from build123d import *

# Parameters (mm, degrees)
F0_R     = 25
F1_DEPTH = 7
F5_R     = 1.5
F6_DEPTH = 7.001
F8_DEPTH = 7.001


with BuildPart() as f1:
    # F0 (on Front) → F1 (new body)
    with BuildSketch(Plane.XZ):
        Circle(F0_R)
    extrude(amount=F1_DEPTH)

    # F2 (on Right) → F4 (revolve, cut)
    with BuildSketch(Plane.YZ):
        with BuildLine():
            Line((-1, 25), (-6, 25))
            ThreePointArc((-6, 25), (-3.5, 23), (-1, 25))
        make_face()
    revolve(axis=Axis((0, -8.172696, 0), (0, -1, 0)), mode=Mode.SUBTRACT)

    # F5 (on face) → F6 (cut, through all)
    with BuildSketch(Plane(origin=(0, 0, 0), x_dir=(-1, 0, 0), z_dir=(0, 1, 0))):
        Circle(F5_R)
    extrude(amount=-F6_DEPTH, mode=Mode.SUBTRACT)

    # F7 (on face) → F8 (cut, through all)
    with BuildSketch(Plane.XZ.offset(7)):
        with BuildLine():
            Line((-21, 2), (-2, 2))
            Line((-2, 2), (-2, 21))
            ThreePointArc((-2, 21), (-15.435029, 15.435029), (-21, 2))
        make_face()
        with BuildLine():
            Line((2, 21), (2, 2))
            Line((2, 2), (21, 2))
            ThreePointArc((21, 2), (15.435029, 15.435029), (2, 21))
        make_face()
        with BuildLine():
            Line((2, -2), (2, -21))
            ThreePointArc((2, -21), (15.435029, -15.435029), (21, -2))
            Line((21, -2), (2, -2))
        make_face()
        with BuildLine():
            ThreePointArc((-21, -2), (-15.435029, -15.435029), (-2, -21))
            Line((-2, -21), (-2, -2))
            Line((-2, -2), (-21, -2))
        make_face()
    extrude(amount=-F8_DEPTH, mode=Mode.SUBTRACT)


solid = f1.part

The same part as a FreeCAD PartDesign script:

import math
import FreeCAD as App
import Part
import Sketcher

doc = App.newDocument("Part")
body = doc.addObject("PartDesign::Body", "Body")

# Sketch on XZ plane
sketch1 = doc.addObject("Sketcher::SketchObject", "Sketch")
body.addObject(sketch1)
sketch1.AttachmentSupport = (doc.XZ_Plane, [""])
sketch1.MapMode = "FlatFace"
sketch1.addGeometry(Part.Circle(App.Vector(0, 0, 0), App.Vector(0, 0, 1), 25), False)
sketch1.addConstraint([
    Sketcher.Constraint("Coincident", 0, 3, -1, 1),
    Sketcher.Constraint("Diameter", 0, 50.0),
])
pad1 = doc.addObject("PartDesign::Pad", "Pad")
body.addObject(pad1)
pad1.Profile = sketch1
pad1.Length = 7

# Sketch on YZ plane
sketch2 = doc.addObject("Sketcher::SketchObject", "Sketch001")
body.addObject(sketch2)
sketch2.AttachmentSupport = (doc.YZ_Plane, [""])
sketch2.MapMode = "FlatFace"
sketch2.addGeometry([
    Part.LineSegment(App.Vector(-1, 25, 0), App.Vector(-6, 25, 0)),
    Part.ArcOfCircle(Part.Circle(App.Vector(-3.5, 25.5625, 0), App.Vector(0, 0, 1), 2.5625), math.radians(-167.319617), math.radians(-12.680383)),
], False)
sketch2.addConstraint([
    Sketcher.Constraint("Coincident", 0, 1, 1, 2),
    Sketcher.Constraint("Coincident", 1, 1, 0, 2),
    Sketcher.Constraint("Horizontal", 0),
    Sketcher.Constraint("DistanceX", 0, 2, 0, 1, 5.0),
    Sketcher.Constraint("DistanceX", 0, 1, -1, 1, 1.0),
    Sketcher.Constraint("DistanceY", -1, 1, 0, 1, 25.0),
    Sketcher.Constraint("Radius", 1, 2.5625),
])
groove = doc.addObject("PartDesign::Groove", "Groove")
body.addObject(groove)
groove.Profile = sketch2
groove.ReferenceAxis = (sketch2, ["H_Axis"])
groove.Angle = 360

# Sketch on XZ plane
sketch3 = doc.addObject("Sketcher::SketchObject", "Sketch002")
body.addObject(sketch3)
sketch3.AttachmentSupport = (doc.XZ_Plane, [""])
sketch3.MapMode = "FlatFace"
sketch3.addGeometry(Part.Circle(App.Vector(0, 0, 0), App.Vector(0, 0, 1), 1.5), False)
sketch3.addConstraint([
    Sketcher.Constraint("Coincident", 0, 3, -1, 1),
    Sketcher.Constraint("Diameter", 0, 3.0),
])
pocket1 = doc.addObject("PartDesign::Pocket", "Pocket")
body.addObject(pocket1)
pocket1.Profile = sketch3
pocket1.Type = "ThroughAll"
pocket1.Reversed = True

# Sketch on XZ plane
sketch4 = doc.addObject("Sketcher::SketchObject", "Sketch003")
body.addObject(sketch4)
sketch4.AttachmentSupport = (doc.XZ_Plane, [""])
sketch4.MapMode = "FlatFace"
sketch4.AttachmentOffset = App.Placement(App.Vector(0, 0, 7), App.Rotation())
sketch4.addGeometry([
    Part.LineSegment(App.Vector(-21, 2, 0), App.Vector(-2, 2, 0)),  # 0
    Part.LineSegment(App.Vector(-2, 2, 0), App.Vector(-2, 21, 0)),  # 1
    Part.ArcOfCircle(Part.Circle(App.Vector(-2.000001, 2.000001, 0), App.Vector(0, 0, 1), 18.999999), math.radians(89.999998), math.radians(180.000002)),  # 2
    Part.LineSegment(App.Vector(2, 21, 0), App.Vector(2, 2, 0)),  # 3
    Part.LineSegment(App.Vector(2, 2, 0), App.Vector(21, 2, 0)),  # 4
    Part.ArcOfCircle(Part.Circle(App.Vector(2.000001, 2.000001, 0), App.Vector(0, 0, 1), 18.999999), math.radians(-0.000002), math.radians(90.000002)),  # 5
    Part.LineSegment(App.Vector(2, -2, 0), App.Vector(2, -21, 0)),  # 6
    Part.ArcOfCircle(Part.Circle(App.Vector(2.000001, -2.000001, 0), App.Vector(0, 0, 1), 18.999999), math.radians(-90.000002), math.radians(0.000002)),  # 7
    Part.LineSegment(App.Vector(21, -2, 0), App.Vector(2, -2, 0)),  # 8
    Part.ArcOfCircle(Part.Circle(App.Vector(-2.000001, -2.000001, 0), App.Vector(0, 0, 1), 18.999999), math.radians(179.999998), math.radians(270.000002)),  # 9
    Part.LineSegment(App.Vector(-2, -21, 0), App.Vector(-2, -2, 0)),  # 10
    Part.LineSegment(App.Vector(-2, -2, 0), App.Vector(-21, -2, 0)),  # 11
], False)
sketch4.addConstraint([
    Sketcher.Constraint("Coincident", 0, 2, 1, 1),
    Sketcher.Constraint("Coincident", 1, 2, 2, 1),
    Sketcher.Constraint("Coincident", 2, 2, 0, 1),
    Sketcher.Constraint("Coincident", 3, 2, 4, 1),
    Sketcher.Constraint("Coincident", 4, 2, 5, 1),
    Sketcher.Constraint("Coincident", 5, 2, 3, 1),
    Sketcher.Constraint("Coincident", 6, 2, 7, 1),
    Sketcher.Constraint("Coincident", 7, 2, 8, 1),
    Sketcher.Constraint("Coincident", 8, 2, 6, 1),
    Sketcher.Constraint("Coincident", 9, 2, 10, 1),
    Sketcher.Constraint("Coincident", 10, 2, 11, 1),
    Sketcher.Constraint("Coincident", 11, 2, 9, 1),
    Sketcher.Constraint("Horizontal", 0),
    Sketcher.Constraint("Vertical", 1),
    Sketcher.Constraint("Vertical", 3),
    Sketcher.Constraint("Horizontal", 4),
    Sketcher.Constraint("Vertical", 6),
    Sketcher.Constraint("Horizontal", 8),
    Sketcher.Constraint("Vertical", 10),
    Sketcher.Constraint("Horizontal", 11),
    Sketcher.Constraint("Coincident", 0, 2, 2, 3),
    Sketcher.Constraint("Coincident", 3, 2, 5, 3),
    Sketcher.Constraint("Coincident", 8, 2, 7, 3),
    Sketcher.Constraint("Coincident", 10, 2, 9, 3),
    Sketcher.Constraint("Equal", 2, 5),
    Sketcher.Constraint("Equal", 5, 7),
    Sketcher.Constraint("Equal", 7, 9),
    Sketcher.Constraint("Symmetric", 2, 3, 7, 3, -1, 1),
    Sketcher.Constraint("Symmetric", 5, 3, 9, 3, -1, 1),
    Sketcher.Constraint("Symmetric", 2, 3, 5, 3, -2),
    Sketcher.Constraint("Radius", 2, 18.999999),
    Sketcher.Constraint("DistanceX", 2, 3, -1, 1, 2.000001),
    Sketcher.Constraint("DistanceY", -1, 1, 2, 3, 2.000001),
])
pocket2 = doc.addObject("PartDesign::Pocket", "Pocket001")
body.addObject(pocket2)
pocket2.Profile = sketch4
pocket2.Type = "ThroughAll"

doc.recompute()
